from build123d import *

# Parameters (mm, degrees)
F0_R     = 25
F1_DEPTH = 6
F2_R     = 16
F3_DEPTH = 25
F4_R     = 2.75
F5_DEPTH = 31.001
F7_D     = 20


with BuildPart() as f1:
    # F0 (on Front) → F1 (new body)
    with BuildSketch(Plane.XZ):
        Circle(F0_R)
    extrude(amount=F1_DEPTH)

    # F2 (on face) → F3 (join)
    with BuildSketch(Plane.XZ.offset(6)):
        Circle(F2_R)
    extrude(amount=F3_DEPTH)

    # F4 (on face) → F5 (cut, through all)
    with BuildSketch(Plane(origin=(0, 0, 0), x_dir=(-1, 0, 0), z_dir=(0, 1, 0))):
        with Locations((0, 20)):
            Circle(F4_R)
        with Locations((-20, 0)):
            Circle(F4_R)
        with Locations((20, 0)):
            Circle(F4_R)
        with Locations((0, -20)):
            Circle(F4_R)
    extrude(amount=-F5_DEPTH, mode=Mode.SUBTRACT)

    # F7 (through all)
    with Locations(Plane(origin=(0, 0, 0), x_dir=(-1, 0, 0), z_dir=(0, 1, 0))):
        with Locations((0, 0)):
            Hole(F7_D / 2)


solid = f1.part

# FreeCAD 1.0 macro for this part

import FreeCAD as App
import Part
import Sketcher
Q = App.Units.Quantity

doc = App.newDocument("Part")
body = doc.addObject("PartDesign::Body", "Body")

sketch1 = body.newObject("Sketcher::SketchObject", "Sketch")
sketch1.AttachmentSupport = (doc.getObject("XZ_Plane"), [""])
sketch1.MapMode = "FlatFace"
sketch1.addGeometry(Part.Circle(App.Vector(0, 0, 0), App.Vector(0, 0, 1), 25), False)
sketch1.addConstraint(Sketcher.Constraint("Coincident", 0, 3, -1, 1))
sketch1.addConstraint(Sketcher.Constraint("Diameter", 0, Q("50 mm")))
pad1 = body.newObject("PartDesign::Pad", "Pad")
pad1.Profile = sketch1
pad1.Length = 6

sketch2 = body.newObject("Sketcher::SketchObject", "Sketch001")
sketch2.AttachmentSupport = (doc.getObject("XZ_Plane"), [""])
sketch2.MapMode = "FlatFace"
sketch2.AttachmentOffset = App.Placement(App.Vector(0, 0, 6), App.Rotation())
sketch2.addGeometry(Part.Circle(App.Vector(0, 0, 0), App.Vector(0, 0, 1), 16), False)
sketch2.addConstraint(Sketcher.Constraint("Coincident", 0, 3, -1, 1))
sketch2.addConstraint(Sketcher.Constraint("Diameter", 0, Q("32 mm")))
pad2 = body.newObject("PartDesign::Pad", "Pad001")
pad2.Profile = sketch2
pad2.Length = 25

sketch3 = body.newObject("Sketcher::SketchObject", "Sketch002")
sketch3.AttachmentSupport = (doc.getObject("XZ_Plane"), [""])
sketch3.MapMode = "FlatFace"
sketch3.addGeometry(Part.Circle(App.Vector(0, 20, 0), App.Vector(0, 0, 1), 2.8), False)
sketch3.addGeometry(Part.Circle(App.Vector(20, 0, 0), App.Vector(0, 0, 1), 2.8), False)
sketch3.addGeometry(Part.Circle(App.Vector(-20, 0, 0), App.Vector(0, 0, 1), 2.8), False)
sketch3.addGeometry(Part.Circle(App.Vector(0, -20, 0), App.Vector(0, 0, 1), 2.8), False)
sketch3.addConstraint(Sketcher.Constraint("Equal", 0, 1))
sketch3.addConstraint(Sketcher.Constraint("Equal", 1, 2))
sketch3.addConstraint(Sketcher.Constraint("Equal", 2, 3))
sketch3.addConstraint(Sketcher.Constraint("Symmetric", 1, 3, 2, 3, -1, 1))
sketch3.addConstraint(Sketcher.Constraint("Symmetric", 0, 3, 3, 3, -1, 1))
sketch3.addConstraint(Sketcher.Constraint("PointOnObject", 0, 3, -2))
sketch3.addConstraint(Sketcher.Constraint("PointOnObject", 1, 3, -1))
sketch3.addConstraint(Sketcher.Constraint("Diameter", 0, Q("5.5 mm")))
sketch3.addConstraint(Sketcher.Constraint("DistanceY", -1, 1, 0, 3, Q("20 mm")))
sketch3.addConstraint(Sketcher.Constraint("DistanceX", -1, 1, 1, 3, Q("20 mm")))
pocket1 = body.newObject("PartDesign::Pocket", "Pocket")
pocket1.Profile = sketch3
pocket1.Type = "ThroughAll"
pocket1.Reversed = True

sketch4 = body.newObject("Sketcher::SketchObject", "Sketch003")
sketch4.AttachmentSupport = (doc.getObject("XZ_Plane"), [""])
sketch4.MapMode = "FlatFace"
sketch4.addGeometry(Part.Circle(App.Vector(0, 0, 0), App.Vector(0, 0, 1), 10), False)
sketch4.addConstraint(Sketcher.Constraint("Coincident", 0, 3, -1, 1))
sketch4.addConstraint(Sketcher.Constraint("Diameter", 0, Q("20 mm")))
doc.recompute()
hole = body.newObject("PartDesign::Hole", "Hole")
hole.Profile = sketch4
hole.ThreadType = "None"
hole.Diameter = 20
hole.DepthType = "ThroughAll"
hole.Reversed = True

doc.recompute()
